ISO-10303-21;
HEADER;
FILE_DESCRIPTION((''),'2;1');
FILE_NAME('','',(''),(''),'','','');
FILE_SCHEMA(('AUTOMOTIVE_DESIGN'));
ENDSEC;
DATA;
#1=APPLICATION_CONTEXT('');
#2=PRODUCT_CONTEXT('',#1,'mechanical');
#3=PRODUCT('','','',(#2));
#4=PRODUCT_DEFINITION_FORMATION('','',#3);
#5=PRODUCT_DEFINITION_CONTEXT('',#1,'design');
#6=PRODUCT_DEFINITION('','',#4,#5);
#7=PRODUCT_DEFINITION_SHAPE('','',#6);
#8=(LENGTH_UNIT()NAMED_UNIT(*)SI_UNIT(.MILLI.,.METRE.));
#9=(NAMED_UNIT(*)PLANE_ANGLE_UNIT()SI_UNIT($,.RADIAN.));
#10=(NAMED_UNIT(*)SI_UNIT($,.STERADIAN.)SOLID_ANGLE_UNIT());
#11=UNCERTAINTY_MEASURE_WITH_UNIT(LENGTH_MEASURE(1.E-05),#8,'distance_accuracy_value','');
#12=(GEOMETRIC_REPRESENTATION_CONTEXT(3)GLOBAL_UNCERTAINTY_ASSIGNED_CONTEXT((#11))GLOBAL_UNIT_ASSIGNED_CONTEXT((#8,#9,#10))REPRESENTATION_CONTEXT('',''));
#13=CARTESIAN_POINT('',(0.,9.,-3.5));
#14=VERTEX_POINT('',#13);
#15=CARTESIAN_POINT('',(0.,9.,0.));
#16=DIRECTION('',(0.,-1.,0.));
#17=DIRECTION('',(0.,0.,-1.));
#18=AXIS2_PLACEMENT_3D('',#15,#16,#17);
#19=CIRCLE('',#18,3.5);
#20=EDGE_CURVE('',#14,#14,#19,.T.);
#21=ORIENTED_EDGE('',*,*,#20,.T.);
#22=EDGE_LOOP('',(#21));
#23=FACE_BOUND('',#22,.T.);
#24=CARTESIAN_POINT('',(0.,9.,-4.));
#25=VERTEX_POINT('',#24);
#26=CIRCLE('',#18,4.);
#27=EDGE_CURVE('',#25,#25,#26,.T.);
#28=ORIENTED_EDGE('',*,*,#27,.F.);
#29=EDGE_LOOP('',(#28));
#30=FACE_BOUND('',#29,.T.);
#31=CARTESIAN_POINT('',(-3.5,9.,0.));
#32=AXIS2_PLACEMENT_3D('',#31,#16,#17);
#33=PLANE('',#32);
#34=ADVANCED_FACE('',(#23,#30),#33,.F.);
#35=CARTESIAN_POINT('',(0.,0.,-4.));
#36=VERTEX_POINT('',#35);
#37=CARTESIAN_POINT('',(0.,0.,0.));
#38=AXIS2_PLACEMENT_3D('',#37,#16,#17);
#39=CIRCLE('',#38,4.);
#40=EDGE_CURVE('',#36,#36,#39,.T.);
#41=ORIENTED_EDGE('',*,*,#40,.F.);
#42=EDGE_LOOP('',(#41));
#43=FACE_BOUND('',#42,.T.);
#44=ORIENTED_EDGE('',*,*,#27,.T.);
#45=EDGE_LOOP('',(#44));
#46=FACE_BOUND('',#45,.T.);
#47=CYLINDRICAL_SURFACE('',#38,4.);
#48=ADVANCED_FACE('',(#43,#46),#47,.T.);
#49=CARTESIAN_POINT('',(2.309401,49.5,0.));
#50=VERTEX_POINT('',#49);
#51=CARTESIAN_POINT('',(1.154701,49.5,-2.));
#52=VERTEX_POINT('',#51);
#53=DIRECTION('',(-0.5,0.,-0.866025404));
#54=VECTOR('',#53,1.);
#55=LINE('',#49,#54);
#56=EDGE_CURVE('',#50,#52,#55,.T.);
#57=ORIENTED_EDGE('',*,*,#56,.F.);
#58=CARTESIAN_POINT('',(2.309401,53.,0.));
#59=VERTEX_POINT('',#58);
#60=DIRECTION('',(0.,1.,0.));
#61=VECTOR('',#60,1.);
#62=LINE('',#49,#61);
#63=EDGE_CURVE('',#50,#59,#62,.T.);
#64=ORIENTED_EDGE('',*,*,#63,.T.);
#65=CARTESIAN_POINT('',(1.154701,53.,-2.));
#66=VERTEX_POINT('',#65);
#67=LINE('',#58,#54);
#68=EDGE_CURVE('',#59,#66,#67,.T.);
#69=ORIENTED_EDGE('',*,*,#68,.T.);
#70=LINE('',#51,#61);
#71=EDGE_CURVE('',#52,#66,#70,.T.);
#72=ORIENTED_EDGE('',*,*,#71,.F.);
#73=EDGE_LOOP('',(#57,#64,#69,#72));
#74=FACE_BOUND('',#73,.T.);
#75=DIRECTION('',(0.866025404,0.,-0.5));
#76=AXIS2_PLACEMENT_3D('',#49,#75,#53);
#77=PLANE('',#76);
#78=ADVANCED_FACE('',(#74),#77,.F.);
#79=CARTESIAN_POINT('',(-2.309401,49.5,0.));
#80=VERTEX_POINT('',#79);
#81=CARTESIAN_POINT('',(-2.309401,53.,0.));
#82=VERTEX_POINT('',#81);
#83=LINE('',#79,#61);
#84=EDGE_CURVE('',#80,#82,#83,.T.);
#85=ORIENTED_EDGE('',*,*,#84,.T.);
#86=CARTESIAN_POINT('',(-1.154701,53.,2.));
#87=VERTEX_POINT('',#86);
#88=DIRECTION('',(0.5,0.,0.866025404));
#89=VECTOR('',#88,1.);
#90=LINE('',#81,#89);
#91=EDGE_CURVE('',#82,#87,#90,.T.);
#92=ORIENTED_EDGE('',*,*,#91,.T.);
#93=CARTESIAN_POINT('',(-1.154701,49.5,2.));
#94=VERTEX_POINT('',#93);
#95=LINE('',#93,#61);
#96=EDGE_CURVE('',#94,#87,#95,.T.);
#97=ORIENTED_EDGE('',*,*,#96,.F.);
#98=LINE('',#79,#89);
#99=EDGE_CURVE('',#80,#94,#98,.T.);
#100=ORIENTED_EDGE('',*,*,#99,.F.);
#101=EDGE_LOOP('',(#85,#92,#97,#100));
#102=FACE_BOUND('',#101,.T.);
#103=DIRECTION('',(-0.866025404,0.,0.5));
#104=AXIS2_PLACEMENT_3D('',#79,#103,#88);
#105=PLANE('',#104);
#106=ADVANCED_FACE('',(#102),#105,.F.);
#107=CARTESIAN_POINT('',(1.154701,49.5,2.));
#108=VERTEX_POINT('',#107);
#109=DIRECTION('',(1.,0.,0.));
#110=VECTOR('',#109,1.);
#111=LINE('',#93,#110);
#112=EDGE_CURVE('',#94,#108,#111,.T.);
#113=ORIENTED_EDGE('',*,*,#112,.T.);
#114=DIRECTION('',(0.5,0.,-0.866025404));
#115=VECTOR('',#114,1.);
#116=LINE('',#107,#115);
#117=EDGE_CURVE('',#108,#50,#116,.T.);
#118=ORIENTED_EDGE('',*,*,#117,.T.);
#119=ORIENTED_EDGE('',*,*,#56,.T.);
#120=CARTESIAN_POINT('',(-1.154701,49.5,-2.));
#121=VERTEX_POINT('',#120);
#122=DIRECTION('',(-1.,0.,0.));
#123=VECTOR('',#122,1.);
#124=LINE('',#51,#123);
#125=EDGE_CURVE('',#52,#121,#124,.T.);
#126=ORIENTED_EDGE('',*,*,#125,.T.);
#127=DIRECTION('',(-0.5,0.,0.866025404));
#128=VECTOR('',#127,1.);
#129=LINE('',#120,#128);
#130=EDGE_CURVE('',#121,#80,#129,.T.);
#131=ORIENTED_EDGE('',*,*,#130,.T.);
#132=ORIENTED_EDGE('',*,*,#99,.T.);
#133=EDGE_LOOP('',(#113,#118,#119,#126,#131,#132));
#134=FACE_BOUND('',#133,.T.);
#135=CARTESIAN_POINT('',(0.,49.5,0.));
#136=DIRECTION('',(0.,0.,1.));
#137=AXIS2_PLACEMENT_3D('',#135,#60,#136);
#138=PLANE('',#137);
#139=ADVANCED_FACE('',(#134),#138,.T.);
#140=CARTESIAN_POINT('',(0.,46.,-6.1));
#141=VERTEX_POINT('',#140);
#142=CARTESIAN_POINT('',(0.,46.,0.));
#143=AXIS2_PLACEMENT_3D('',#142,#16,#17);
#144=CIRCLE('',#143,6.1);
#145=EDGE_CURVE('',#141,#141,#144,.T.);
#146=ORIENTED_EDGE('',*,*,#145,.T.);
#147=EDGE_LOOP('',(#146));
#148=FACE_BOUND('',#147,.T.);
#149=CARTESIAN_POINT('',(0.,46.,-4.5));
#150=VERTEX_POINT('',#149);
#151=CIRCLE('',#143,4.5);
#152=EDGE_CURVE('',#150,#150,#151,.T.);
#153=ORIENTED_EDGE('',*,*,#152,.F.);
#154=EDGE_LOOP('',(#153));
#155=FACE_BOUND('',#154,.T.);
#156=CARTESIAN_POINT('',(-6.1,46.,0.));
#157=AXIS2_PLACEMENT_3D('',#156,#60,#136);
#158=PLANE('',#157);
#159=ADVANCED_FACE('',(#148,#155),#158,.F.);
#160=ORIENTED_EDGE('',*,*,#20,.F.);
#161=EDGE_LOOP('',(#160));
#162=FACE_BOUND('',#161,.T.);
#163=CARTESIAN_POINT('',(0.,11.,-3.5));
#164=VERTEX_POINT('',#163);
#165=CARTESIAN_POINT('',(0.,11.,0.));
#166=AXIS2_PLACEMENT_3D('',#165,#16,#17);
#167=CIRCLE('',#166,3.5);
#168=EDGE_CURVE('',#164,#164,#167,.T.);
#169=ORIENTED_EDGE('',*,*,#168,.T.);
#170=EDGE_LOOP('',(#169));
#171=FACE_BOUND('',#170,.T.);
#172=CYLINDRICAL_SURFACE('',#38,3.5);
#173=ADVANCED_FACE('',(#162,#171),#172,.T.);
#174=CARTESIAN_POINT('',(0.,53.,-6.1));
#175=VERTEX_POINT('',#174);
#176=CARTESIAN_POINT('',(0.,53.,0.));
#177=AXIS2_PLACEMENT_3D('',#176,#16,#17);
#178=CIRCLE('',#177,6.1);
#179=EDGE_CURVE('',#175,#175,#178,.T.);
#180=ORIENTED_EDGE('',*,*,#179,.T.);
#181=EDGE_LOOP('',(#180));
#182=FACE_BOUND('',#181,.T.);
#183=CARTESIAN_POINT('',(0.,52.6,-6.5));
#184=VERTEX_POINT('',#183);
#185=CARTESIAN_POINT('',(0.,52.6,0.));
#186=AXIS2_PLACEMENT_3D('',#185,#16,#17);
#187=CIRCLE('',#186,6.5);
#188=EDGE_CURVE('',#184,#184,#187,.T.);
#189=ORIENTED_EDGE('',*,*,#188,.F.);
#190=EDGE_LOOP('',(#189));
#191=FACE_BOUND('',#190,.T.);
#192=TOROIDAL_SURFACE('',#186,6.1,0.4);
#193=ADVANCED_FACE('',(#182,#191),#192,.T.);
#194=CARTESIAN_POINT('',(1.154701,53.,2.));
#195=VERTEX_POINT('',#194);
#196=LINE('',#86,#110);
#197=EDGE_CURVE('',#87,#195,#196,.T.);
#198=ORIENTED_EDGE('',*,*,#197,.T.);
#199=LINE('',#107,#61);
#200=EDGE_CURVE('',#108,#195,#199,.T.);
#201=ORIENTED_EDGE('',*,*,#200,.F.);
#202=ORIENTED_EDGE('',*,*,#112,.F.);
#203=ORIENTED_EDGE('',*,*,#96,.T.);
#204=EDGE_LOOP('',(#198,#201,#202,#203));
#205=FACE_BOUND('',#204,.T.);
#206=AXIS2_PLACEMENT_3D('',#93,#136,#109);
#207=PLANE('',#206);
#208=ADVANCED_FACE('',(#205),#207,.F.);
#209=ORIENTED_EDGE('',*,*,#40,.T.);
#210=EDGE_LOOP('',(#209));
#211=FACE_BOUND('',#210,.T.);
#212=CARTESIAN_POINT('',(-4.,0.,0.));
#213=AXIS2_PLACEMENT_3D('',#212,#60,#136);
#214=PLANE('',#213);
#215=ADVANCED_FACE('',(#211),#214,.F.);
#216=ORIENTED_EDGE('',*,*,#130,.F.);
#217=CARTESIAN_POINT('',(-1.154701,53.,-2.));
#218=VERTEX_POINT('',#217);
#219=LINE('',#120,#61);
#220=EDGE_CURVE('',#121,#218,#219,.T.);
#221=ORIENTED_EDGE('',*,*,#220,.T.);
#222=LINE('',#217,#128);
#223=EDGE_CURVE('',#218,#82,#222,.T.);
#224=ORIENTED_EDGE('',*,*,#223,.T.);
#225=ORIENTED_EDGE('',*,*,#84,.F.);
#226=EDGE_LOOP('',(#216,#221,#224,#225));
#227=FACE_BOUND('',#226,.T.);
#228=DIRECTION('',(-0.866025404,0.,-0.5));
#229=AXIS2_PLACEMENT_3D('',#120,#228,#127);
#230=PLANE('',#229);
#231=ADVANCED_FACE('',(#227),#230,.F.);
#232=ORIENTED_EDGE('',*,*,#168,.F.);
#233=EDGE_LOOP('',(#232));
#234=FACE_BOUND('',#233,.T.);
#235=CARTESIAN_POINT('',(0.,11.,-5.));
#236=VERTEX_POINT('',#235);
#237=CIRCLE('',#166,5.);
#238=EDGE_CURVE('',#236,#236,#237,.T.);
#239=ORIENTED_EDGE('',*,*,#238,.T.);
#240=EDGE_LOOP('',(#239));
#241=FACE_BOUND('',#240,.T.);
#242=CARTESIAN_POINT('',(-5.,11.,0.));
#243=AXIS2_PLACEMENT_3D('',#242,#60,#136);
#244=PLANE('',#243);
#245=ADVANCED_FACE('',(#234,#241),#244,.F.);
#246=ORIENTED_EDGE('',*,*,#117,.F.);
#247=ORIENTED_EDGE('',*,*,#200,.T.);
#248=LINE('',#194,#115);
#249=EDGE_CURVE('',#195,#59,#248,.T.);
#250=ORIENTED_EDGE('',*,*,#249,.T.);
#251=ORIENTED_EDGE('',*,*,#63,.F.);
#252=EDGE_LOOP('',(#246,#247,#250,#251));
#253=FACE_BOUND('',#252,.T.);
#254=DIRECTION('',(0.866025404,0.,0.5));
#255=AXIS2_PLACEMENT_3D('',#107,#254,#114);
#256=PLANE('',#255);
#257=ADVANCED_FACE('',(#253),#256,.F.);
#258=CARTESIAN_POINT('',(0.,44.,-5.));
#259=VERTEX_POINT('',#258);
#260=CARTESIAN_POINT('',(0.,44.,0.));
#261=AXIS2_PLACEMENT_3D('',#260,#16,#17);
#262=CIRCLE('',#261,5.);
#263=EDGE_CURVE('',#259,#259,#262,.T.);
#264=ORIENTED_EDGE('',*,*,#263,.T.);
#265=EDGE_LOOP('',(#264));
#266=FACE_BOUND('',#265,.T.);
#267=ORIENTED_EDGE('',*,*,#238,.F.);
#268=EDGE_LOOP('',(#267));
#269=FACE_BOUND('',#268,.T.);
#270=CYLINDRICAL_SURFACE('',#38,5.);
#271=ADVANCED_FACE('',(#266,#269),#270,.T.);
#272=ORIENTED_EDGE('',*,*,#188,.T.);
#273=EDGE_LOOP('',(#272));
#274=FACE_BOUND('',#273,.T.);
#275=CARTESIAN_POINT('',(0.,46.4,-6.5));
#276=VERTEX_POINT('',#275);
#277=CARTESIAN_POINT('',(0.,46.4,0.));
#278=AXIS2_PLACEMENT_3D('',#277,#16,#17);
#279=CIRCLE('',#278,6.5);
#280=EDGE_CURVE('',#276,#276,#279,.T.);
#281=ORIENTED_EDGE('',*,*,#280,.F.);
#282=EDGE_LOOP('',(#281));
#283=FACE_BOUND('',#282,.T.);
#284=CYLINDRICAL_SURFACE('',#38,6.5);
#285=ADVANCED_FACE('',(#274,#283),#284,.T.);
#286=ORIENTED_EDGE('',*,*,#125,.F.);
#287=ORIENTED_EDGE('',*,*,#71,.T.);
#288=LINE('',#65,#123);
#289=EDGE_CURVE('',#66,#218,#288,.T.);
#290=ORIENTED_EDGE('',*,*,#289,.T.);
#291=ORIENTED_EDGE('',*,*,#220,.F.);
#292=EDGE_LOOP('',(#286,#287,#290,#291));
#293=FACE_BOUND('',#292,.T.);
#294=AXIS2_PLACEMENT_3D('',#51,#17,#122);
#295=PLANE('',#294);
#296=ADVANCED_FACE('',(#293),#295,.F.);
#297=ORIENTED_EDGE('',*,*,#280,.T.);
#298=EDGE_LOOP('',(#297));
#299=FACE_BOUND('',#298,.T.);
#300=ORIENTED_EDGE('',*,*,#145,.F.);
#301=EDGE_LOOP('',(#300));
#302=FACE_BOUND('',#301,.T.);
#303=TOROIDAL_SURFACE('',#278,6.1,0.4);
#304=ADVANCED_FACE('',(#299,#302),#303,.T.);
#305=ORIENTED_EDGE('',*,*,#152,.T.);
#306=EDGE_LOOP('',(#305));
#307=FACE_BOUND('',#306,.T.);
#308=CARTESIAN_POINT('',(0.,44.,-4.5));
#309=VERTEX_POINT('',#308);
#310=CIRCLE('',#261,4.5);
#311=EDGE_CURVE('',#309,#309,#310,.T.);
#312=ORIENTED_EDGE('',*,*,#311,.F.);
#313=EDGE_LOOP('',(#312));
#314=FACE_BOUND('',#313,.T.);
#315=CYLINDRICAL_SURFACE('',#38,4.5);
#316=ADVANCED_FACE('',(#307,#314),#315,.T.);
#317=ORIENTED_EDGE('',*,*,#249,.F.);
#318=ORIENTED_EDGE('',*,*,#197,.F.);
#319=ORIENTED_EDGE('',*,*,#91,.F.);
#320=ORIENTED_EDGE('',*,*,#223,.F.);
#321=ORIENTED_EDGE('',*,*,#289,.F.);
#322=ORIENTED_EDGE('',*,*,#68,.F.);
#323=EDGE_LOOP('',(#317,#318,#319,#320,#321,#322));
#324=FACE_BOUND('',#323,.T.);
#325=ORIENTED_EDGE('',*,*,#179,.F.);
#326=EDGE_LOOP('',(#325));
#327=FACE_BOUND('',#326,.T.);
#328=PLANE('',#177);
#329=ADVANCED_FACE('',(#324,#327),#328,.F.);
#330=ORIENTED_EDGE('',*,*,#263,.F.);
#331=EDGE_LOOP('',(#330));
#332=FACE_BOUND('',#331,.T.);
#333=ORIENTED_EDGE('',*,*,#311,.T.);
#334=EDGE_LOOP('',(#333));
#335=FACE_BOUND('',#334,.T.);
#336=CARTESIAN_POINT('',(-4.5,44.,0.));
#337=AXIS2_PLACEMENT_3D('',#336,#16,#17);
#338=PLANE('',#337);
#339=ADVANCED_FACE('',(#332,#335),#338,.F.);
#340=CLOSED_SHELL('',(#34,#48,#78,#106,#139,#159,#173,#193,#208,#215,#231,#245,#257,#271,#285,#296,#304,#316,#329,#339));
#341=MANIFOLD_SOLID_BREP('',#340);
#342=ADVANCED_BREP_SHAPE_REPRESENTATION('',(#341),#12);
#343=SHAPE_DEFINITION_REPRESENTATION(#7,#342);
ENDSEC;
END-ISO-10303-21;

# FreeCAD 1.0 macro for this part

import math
import FreeCAD as App
import Part
import Sketcher
Q = App.Units.Quantity

doc = App.newDocument("Part")
body = doc.addObject("PartDesign::Body", "Body")

# Sketch on XY plane
sketch1 = body.newObject("Sketcher::SketchObject", "Sketch")
sketch1.AttachmentSupport = (doc.getObject("XY_Plane"), [""])
sketch1.MapMode = "FlatFace"
sketch1.addGeometry(Part.LineSegment(App.Vector(0, 53, 0), App.Vector(-6.1, 53, 0)), False)
sketch1.addGeometry(Part.ArcOfCircle(Part.Circle(App.Vector(-6.1, 52.6, 0), App.Vector(0, 0, 1), 0.4), math.radians(90), math.radians(180)), False)
sketch1.addGeometry(Part.LineSegment(App.Vector(-6.5, 52.6, 0), App.Vector(-6.5, 46.4, 0)), False)
sketch1.addGeometry(Part.ArcOfCircle(Part.Circle(App.Vector(-6.1, 46.4, 0), App.Vector(0, 0, 1), 0.4), math.radians(-180), math.radians(-90)), False)
sketch1.addGeometry(Part.LineSegment(App.Vector(-6.1, 46, 0), App.Vector(-4.5, 46, 0)), False)
sketch1.addGeometry(Part.LineSegment(App.Vector(-4.5, 46, 0), App.Vector(-4.5, 44, 0)), False)
sketch1.addGeometry(Part.LineSegment(App.Vector(-4.5, 44, 0), App.Vector(-5, 44, 0)), False)
sketch1.addGeometry(Part.LineSegment(App.Vector(-5, 44, 0), App.Vector(-5, 11, 0)), False)
sketch1.addGeometry(Part.LineSegment(App.Vector(-5, 11, 0), App.Vector(-3.5, 11, 0)), False)
sketch1.addGeometry(Part.LineSegment(App.Vector(-3.5, 11, 0), App.Vector(-3.5, 9, 0)), False)
sketch1.addGeometry(Part.LineSegment(App.Vector(-3.5, 9, 0), App.Vector(-4, 9, 0)), False)
sketch1.addGeometry(Part.LineSegment(App.Vector(-4, 9, 0), App.Vector(-4, 0, 0)), False)
sketch1.addGeometry(Part.LineSegment(App.Vector(-4, 0, 0), App.Vector(0, 0, 0)), False)
sketch1.addGeometry(Part.LineSegment(App.Vector(0, 0, 0), App.Vector(0, 53, 0)), False)
sketch1.addConstraint(Sketcher.Constraint("Tangent", 0, 2, 1, 1))
sketch1.addConstraint(Sketcher.Constraint("Tangent", 1, 2, 2, 1))
sketch1.addConstraint(Sketcher.Constraint("Tangent", 2, 2, 3, 1))
sketch1.addConstraint(Sketcher.Constraint("Tangent", 3, 2, 4, 1))
sketch1.addConstraint(Sketcher.Constraint("Coincident", 4, 2, 5, 1))
sketch1.addConstraint(Sketcher.Constraint("Coincident", 5, 2, 6, 1))
sketch1.addConstraint(Sketcher.Constraint("Coincident", 6, 2, 7, 1))
sketch1.addConstraint(Sketcher.Constraint("Coincident", 7, 2, 8, 1))
sketch1.addConstraint(Sketcher.Constraint("Coincident", 8, 2, 9, 1))
sketch1.addConstraint(Sketcher.Constraint("Coincident", 9, 2, 10, 1))
sketch1.addConstraint(Sketcher.Constraint("Coincident", 10, 2, 11, 1))
sketch1.addConstraint(Sketcher.Constraint("Coincident", 11, 2, 12, 1))
sketch1.addConstraint(Sketcher.Constraint("Coincident", 12, 2, 13, 1))
sketch1.addConstraint(Sketcher.Constraint("Coincident", 13, 2, 0, 1))
sketch1.addConstraint(Sketcher.Constraint("Horizontal", 0))
sketch1.addConstraint(Sketcher.Constraint("Vertical", 2))
sketch1.addConstraint(Sketcher.Constraint("Horizontal", 4))
sketch1.addConstraint(Sketcher.Constraint("Vertical", 5))
sketch1.addConstraint(Sketcher.Constraint("Horizontal", 6))
sketch1.addConstraint(Sketcher.Constraint("Vertical", 7))
sketch1.addConstraint(Sketcher.Constraint("Horizontal", 8))
sketch1.addConstraint(Sketcher.Constraint("Vertical", 9))
sketch1.addConstraint(Sketcher.Constraint("Horizontal", 10))
sketch1.addConstraint(Sketcher.Constraint("Vertical", 11))
sketch1.addConstraint(Sketcher.Constraint("Horizontal", 12))
sketch1.addConstraint(Sketcher.Constraint("Vertical", 13))
sketch1.addConstraint(Sketcher.Constraint("Coincident", 12, 2, -1, 1))
sketch1.addConstraint(Sketcher.Constraint("Equal", 1, 3))
sketch1.addConstraint(Sketcher.Constraint("Equal", 6, 10))
sketch1.addConstraint(Sketcher.Constraint("Equal", 5, 9))
sketch1.addConstraint(Sketcher.Constraint("Radius", 1, Q("0.4 mm")))
sketch1.addConstraint(Sketcher.Constraint("DistanceX", 12, 1, 12, 2, Q("4 mm")))
sketch1.addConstraint(Sketcher.Constraint("DistanceY", 5, 2, 5, 1, Q("2 mm")))
sketch1.addConstraint(Sketcher.Constraint("DistanceY", 7, 2, 7, 1, Q("33 mm")))
sketch1.addConstraint(Sketcher.Constraint("DistanceY", 11, 2, 11, 1, Q("9 mm")))
sketch1.addConstraint(Sketcher.Constraint("DistanceY", 13, 1, 13, 2, Q("53 mm")))
sketch1.addConstraint(Sketcher.Constraint("DistanceX", 0, 2, 0, 1, Q("6.1 mm")))
sketch1.addConstraint(Sketcher.Constraint("DistanceX", 4, 1, 4, 2, Q("1.6 mm")))
sketch1.addConstraint(Sketcher.Constraint("DistanceX", 6, 2, 6, 1, Q("0.5 mm")))
revolution = body.newObject("PartDesign::Revolution", "Revolution")
revolution.Profile = sketch1
revolution.ReferenceAxis = (sketch1, ["V_Axis"])
revolution.Angle = 360

# Sketch on XZ plane
sketch2 = body.newObject("Sketcher::SketchObject", "Sketch001")
sketch2.AttachmentSupport = (doc.getObject("XZ_Plane"), [""])
sketch2.MapMode = "FlatFace"
sketch2.AttachmentOffset = App.Placement(App.Vector(0, 0, -53), App.Rotation())
sketch2.addGeometry(Part.LineSegment(App.Vector(1.2, -2, 0), App.Vector(-1.2, -2, 0)), False)
sketch2.addGeometry(Part.LineSegment(App.Vector(-1.2, -2, 0), App.Vector(-2.3, 0, 0)), False)
sketch2.addGeometry(Part.LineSegment(App.Vector(-2.3, 0, 0), App.Vector(-1.2, 2, 0)), False)
sketch2.addGeometry(Part.LineSegment(App.Vector(-1.2, 2, 0), App.Vector(1.2, 2, 0)), False)
sketch2.addGeometry(Part.LineSegment(App.Vector(1.2, 2, 0), App.Vector(2.3, 0, 0)), False)
sketch2.addGeometry(Part.LineSegment(App.Vector(2.3, 0, 0), App.Vector(1.2, -2, 0)), False)
sketch2.addConstraint(Sketcher.Constraint("Coincident", 0, 2, 1, 1))
sketch2.addConstraint(Sketcher.Constraint("Coincident", 1, 2, 2, 1))
sketch2.addConstraint(Sketcher.Constraint("Coincident", 2, 2, 3, 1))
sketch2.addConstraint(Sketcher.Constraint("Coincident", 3, 2, 4, 1))
sketch2.addConstraint(Sketcher.Constraint("Coincident", 4, 2, 5, 1))
sketch2.addConstraint(Sketcher.Constraint("Coincident", 5, 2, 0, 1))
sketch2.addConstraint(Sketcher.Constraint("Horizontal", 0))
sketch2.addConstraint(Sketcher.Constraint("Horizontal", 3))
sketch2.addConstraint(Sketcher.Constraint("Symmetric", 0, 2, 3, 2, -1, 1))
sketch2.addConstraint(Sketcher.Constraint("Symmetric", 1, 2, 4, 2, -1, 1))
sketch2.addConstraint(Sketcher.Constraint("PointOnObject", 1, 2, -1))
sketch2.addConstraint(Sketcher.Constraint("Parallel", 2, 5))
sketch2.addConstraint(Sketcher.Constraint("Vertical", 0, 2, 2, 2))
sketch2.addConstraint(Sketcher.Constraint("Angle", 1, Q("120 deg")))
sketch2.addConstraint(Sketcher.Constraint("DistanceY", 0, 2, -1, 1, Q("2 mm")))
sketch2.addConstraint(Sketcher.Constraint("DistanceX", 0, 2, 0, 1, Q("2.309401 mm")))
pocket1 = body.newObject("PartDesign::Pocket", "Pocket")
pocket1.Profile = sketch2
pocket1.Length = 3.5
pocket1.Reversed = True

doc.recompute()
